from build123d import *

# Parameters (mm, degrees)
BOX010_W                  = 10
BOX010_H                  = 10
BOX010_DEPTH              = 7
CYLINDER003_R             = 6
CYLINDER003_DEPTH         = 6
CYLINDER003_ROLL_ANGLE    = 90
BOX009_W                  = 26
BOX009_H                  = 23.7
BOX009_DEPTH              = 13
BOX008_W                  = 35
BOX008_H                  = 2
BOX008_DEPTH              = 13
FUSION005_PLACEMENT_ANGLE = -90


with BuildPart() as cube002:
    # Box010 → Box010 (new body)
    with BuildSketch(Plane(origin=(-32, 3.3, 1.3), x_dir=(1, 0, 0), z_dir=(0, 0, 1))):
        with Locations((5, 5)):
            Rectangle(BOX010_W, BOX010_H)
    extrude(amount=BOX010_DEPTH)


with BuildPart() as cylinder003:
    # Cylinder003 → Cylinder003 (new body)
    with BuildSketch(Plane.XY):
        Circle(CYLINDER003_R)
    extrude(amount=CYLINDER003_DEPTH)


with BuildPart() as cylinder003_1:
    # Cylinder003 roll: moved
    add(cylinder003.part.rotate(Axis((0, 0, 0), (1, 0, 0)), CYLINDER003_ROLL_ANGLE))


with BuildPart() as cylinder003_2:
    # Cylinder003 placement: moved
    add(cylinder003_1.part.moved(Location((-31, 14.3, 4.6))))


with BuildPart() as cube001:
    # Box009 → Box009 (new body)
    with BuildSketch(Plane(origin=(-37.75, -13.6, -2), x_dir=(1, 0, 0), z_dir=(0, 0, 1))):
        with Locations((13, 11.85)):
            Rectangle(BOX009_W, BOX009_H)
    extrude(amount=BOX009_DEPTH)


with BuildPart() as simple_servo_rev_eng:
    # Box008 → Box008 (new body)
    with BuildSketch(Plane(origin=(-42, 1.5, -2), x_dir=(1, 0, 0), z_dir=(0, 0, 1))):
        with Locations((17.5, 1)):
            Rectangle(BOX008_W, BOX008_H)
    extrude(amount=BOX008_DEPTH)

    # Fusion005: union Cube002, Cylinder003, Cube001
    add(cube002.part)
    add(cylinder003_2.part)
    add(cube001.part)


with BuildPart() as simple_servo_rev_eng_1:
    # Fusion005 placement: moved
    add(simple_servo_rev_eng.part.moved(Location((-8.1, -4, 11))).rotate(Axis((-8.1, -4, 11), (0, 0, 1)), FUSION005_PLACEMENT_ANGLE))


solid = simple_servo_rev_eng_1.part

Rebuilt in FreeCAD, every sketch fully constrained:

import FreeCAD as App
import Part
import Sketcher

V = App.Vector

doc = App.newDocument("Part")
body = doc.addObject("PartDesign::Body", "Body")

# Sketch on XY plane
sketch1 = body.newObject("Sketcher::SketchObject", "Sketch")
sketch1.AttachmentSupport = (doc.getObject("XY_Plane"), [""])
sketch1.MapMode = "FlatFace"
sketch1.AttachmentOffset = App.Placement(V(0, 0, 1.3), App.Rotation())
sketch1.addGeometry([
    Part.LineSegment(V(-32, 13, 0), V(-32, 3, 0)),
    Part.LineSegment(V(-32, 3, 0), V(-22, 3, 0)),
    Part.LineSegment(V(-22, 3, 0), V(-22, 13, 0)),
    Part.LineSegment(V(-22, 13, 0), V(-32, 13, 0)),
], False)
sketch1.addConstraint([
    Sketcher.Constraint("Coincident", 0, 2, 1, 1),
    Sketcher.Constraint("Coincident", 1, 2, 2, 1),
    Sketcher.Constraint("Coincident", 2, 2, 3, 1),
    Sketcher.Constraint("Coincident", 3, 2, 0, 1),
    Sketcher.Constraint("Vertical", 0),
    Sketcher.Constraint("Horizontal", 1),
    Sketcher.Constraint("Vertical", 2),
    Sketcher.Constraint("Horizontal", 3),
    Sketcher.Constraint("Equal", 3, 0),
    Sketcher.Constraint("DistanceX", 1, 1, 1, 2, 10.0),
    Sketcher.Constraint("DistanceX", 0, 2, -1, 1, 32.0),
    Sketcher.Constraint("DistanceY", -1, 1, 0, 2, 3.3),
])
pad1 = body.newObject("PartDesign::Pad", "Pad")
pad1.Profile = sketch1
pad1.Length = 7
body2 = doc.addObject("PartDesign::Body", "Body001")

# Sketch on XY plane
sketch2 = body2.newObject("Sketcher::SketchObject", "Sketch001")
sketch2.AttachmentSupport = (doc.getObject("XY_Plane001"), [""])
sketch2.MapMode = "FlatFace"
sketch2.addGeometry(Part.Circle(V(0, 0, 0), V(0, 0, 1), 6), False)
sketch2.addConstraint([
    Sketcher.Constraint("Coincident", 0, 3, -1, 1),
    Sketcher.Constraint("Diameter", 0, 12.0),
])
pad2 = body2.newObject("PartDesign::Pad", "Pad001")
pad2.Profile = sketch2
pad2.Length = 6
body3 = doc.addObject("PartDesign::Body", "Body002")
doc.recompute()

body2.Placement = App.Placement(V(0, 0, 0), App.Rotation(V(1, 0, 0), 90))
boolean = body3.newObject("PartDesign::Boolean", "Boolean")
boolean.Type = "Fuse"
boolean.addObjects([body2])
body4 = doc.addObject("PartDesign::Body", "Body003")
doc.recompute()

body3.Placement = App.Placement(V(-31, 14.3, 4.6), App.Rotation(V(0, 0, 1), 0))
boolean2 = body4.newObject("PartDesign::Boolean", "Boolean001")
boolean2.Type = "Fuse"
boolean2.addObjects([body3])
body5 = doc.addObject("PartDesign::Body", "Body004")

# Sketch on XY plane
sketch3 = body5.newObject("Sketcher::SketchObject", "Sketch002")
sketch3.AttachmentSupport = (doc.getObject("XY_Plane004"), [""])
sketch3.MapMode = "FlatFace"
sketch3.AttachmentOffset = App.Placement(V(0, 0, -2), App.Rotation())
sketch3.addGeometry([
    Part.LineSegment(V(-38, 10, 0), V(-38, -14, 0)),
    Part.LineSegment(V(-38, -14, 0), V(-12, -14, 0)),
    Part.LineSegment(V(-12, -14, 0), V(-12, 10, 0)),
    Part.LineSegment(V(-12, 10, 0), V(-38, 10, 0)),
], False)
sketch3.addConstraint([
    Sketcher.Constraint("Coincident", 0, 2, 1, 1),
    Sketcher.Constraint("Coincident", 1, 2, 2, 1),
    Sketcher.Constraint("Coincident", 2, 2, 3, 1),
    Sketcher.Constraint("Coincident", 3, 2, 0, 1),
    Sketcher.Constraint("Vertical", 0),
    Sketcher.Constraint("Horizontal", 1),
    Sketcher.Constraint("Vertical", 2),
    Sketcher.Constraint("Horizontal", 3),
    Sketcher.Constraint("DistanceX", 1, 1, 1, 2, 26.0),
    Sketcher.Constraint("DistanceY", 0, 2, 0, 1, 23.7),
    Sketcher.Constraint("DistanceY", 0, 2, -1, 1, 13.6),
    Sketcher.Constraint("DistanceX", 0, 2, -1, 1, 37.75),
])
pad3 = body5.newObject("PartDesign::Pad", "Pad002")
pad3.Profile = sketch3
pad3.Length = 13
body6 = doc.addObject("PartDesign::Body", "Body005")

# Sketch on XY plane
sketch4 = body6.newObject("Sketcher::SketchObject", "Sketch003")
sketch4.AttachmentSupport = (doc.getObject("XY_Plane005"), [""])
sketch4.MapMode = "FlatFace"
sketch4.AttachmentOffset = App.Placement(V(0, 0, -2), App.Rotation())
sketch4.addGeometry([
    Part.LineSegment(V(-42, 3.5, 0), V(-42, 1.5, 0)),
    Part.LineSegment(V(-42, 1.5, 0), V(-7, 1.5, 0)),
    Part.LineSegment(V(-7, 1.5, 0), V(-7, 3.5, 0)),
    Part.LineSegment(V(-7, 3.5, 0), V(-42, 3.5, 0)),
], False)
sketch4.addConstraint([
    Sketcher.Constraint("Coincident", 0, 2, 1, 1),
    Sketcher.Constraint("Coincident", 1, 2, 2, 1),
    Sketcher.Constraint("Coincident", 2, 2, 3, 1),
    Sketcher.Constraint("Coincident", 3, 2, 0, 1),
    Sketcher.Constraint("Vertical", 0),
    Sketcher.Constraint("Horizontal", 1),
    Sketcher.Constraint("Vertical", 2),
    Sketcher.Constraint("Horizontal", 3),
    Sketcher.Constraint("DistanceX", 1, 1, 1, 2, 35.0),
    Sketcher.Constraint("DistanceY", 0, 2, 0, 1, 2.0),
    Sketcher.Constraint("DistanceX", 0, 2, -1, 1, 42.0),
    Sketcher.Constraint("DistanceY", -1, 1, 0, 2, 1.5),
])
pad4 = body6.newObject("PartDesign::Pad", "Pad003")
pad4.Profile = sketch4
pad4.Length = 13
doc.recompute()

boolean3 = body6.newObject("PartDesign::Boolean", "Boolean002")
boolean3.Type = "Fuse"
boolean3.addObjects([body])
doc.recompute()

boolean4 = body6.newObject("PartDesign::Boolean", "Boolean003")
boolean4.Type = "Fuse"
boolean4.addObjects([body4])
doc.recompute()

boolean5 = body6.newObject("PartDesign::Boolean", "Boolean004")
boolean5.Type = "Fuse"
boolean5.addObjects([body5])
body7 = doc.addObject("PartDesign::Body", "Body006")
doc.recompute()

body6.Placement = App.Placement(V(-8.1, -4, 11), App.Rotation(V(0, 0, 1), 270))
boolean6 = body7.newObject("PartDesign::Boolean", "Boolean005")
boolean6.Type = "Fuse"
boolean6.addObjects([body6])

doc.recompute()
